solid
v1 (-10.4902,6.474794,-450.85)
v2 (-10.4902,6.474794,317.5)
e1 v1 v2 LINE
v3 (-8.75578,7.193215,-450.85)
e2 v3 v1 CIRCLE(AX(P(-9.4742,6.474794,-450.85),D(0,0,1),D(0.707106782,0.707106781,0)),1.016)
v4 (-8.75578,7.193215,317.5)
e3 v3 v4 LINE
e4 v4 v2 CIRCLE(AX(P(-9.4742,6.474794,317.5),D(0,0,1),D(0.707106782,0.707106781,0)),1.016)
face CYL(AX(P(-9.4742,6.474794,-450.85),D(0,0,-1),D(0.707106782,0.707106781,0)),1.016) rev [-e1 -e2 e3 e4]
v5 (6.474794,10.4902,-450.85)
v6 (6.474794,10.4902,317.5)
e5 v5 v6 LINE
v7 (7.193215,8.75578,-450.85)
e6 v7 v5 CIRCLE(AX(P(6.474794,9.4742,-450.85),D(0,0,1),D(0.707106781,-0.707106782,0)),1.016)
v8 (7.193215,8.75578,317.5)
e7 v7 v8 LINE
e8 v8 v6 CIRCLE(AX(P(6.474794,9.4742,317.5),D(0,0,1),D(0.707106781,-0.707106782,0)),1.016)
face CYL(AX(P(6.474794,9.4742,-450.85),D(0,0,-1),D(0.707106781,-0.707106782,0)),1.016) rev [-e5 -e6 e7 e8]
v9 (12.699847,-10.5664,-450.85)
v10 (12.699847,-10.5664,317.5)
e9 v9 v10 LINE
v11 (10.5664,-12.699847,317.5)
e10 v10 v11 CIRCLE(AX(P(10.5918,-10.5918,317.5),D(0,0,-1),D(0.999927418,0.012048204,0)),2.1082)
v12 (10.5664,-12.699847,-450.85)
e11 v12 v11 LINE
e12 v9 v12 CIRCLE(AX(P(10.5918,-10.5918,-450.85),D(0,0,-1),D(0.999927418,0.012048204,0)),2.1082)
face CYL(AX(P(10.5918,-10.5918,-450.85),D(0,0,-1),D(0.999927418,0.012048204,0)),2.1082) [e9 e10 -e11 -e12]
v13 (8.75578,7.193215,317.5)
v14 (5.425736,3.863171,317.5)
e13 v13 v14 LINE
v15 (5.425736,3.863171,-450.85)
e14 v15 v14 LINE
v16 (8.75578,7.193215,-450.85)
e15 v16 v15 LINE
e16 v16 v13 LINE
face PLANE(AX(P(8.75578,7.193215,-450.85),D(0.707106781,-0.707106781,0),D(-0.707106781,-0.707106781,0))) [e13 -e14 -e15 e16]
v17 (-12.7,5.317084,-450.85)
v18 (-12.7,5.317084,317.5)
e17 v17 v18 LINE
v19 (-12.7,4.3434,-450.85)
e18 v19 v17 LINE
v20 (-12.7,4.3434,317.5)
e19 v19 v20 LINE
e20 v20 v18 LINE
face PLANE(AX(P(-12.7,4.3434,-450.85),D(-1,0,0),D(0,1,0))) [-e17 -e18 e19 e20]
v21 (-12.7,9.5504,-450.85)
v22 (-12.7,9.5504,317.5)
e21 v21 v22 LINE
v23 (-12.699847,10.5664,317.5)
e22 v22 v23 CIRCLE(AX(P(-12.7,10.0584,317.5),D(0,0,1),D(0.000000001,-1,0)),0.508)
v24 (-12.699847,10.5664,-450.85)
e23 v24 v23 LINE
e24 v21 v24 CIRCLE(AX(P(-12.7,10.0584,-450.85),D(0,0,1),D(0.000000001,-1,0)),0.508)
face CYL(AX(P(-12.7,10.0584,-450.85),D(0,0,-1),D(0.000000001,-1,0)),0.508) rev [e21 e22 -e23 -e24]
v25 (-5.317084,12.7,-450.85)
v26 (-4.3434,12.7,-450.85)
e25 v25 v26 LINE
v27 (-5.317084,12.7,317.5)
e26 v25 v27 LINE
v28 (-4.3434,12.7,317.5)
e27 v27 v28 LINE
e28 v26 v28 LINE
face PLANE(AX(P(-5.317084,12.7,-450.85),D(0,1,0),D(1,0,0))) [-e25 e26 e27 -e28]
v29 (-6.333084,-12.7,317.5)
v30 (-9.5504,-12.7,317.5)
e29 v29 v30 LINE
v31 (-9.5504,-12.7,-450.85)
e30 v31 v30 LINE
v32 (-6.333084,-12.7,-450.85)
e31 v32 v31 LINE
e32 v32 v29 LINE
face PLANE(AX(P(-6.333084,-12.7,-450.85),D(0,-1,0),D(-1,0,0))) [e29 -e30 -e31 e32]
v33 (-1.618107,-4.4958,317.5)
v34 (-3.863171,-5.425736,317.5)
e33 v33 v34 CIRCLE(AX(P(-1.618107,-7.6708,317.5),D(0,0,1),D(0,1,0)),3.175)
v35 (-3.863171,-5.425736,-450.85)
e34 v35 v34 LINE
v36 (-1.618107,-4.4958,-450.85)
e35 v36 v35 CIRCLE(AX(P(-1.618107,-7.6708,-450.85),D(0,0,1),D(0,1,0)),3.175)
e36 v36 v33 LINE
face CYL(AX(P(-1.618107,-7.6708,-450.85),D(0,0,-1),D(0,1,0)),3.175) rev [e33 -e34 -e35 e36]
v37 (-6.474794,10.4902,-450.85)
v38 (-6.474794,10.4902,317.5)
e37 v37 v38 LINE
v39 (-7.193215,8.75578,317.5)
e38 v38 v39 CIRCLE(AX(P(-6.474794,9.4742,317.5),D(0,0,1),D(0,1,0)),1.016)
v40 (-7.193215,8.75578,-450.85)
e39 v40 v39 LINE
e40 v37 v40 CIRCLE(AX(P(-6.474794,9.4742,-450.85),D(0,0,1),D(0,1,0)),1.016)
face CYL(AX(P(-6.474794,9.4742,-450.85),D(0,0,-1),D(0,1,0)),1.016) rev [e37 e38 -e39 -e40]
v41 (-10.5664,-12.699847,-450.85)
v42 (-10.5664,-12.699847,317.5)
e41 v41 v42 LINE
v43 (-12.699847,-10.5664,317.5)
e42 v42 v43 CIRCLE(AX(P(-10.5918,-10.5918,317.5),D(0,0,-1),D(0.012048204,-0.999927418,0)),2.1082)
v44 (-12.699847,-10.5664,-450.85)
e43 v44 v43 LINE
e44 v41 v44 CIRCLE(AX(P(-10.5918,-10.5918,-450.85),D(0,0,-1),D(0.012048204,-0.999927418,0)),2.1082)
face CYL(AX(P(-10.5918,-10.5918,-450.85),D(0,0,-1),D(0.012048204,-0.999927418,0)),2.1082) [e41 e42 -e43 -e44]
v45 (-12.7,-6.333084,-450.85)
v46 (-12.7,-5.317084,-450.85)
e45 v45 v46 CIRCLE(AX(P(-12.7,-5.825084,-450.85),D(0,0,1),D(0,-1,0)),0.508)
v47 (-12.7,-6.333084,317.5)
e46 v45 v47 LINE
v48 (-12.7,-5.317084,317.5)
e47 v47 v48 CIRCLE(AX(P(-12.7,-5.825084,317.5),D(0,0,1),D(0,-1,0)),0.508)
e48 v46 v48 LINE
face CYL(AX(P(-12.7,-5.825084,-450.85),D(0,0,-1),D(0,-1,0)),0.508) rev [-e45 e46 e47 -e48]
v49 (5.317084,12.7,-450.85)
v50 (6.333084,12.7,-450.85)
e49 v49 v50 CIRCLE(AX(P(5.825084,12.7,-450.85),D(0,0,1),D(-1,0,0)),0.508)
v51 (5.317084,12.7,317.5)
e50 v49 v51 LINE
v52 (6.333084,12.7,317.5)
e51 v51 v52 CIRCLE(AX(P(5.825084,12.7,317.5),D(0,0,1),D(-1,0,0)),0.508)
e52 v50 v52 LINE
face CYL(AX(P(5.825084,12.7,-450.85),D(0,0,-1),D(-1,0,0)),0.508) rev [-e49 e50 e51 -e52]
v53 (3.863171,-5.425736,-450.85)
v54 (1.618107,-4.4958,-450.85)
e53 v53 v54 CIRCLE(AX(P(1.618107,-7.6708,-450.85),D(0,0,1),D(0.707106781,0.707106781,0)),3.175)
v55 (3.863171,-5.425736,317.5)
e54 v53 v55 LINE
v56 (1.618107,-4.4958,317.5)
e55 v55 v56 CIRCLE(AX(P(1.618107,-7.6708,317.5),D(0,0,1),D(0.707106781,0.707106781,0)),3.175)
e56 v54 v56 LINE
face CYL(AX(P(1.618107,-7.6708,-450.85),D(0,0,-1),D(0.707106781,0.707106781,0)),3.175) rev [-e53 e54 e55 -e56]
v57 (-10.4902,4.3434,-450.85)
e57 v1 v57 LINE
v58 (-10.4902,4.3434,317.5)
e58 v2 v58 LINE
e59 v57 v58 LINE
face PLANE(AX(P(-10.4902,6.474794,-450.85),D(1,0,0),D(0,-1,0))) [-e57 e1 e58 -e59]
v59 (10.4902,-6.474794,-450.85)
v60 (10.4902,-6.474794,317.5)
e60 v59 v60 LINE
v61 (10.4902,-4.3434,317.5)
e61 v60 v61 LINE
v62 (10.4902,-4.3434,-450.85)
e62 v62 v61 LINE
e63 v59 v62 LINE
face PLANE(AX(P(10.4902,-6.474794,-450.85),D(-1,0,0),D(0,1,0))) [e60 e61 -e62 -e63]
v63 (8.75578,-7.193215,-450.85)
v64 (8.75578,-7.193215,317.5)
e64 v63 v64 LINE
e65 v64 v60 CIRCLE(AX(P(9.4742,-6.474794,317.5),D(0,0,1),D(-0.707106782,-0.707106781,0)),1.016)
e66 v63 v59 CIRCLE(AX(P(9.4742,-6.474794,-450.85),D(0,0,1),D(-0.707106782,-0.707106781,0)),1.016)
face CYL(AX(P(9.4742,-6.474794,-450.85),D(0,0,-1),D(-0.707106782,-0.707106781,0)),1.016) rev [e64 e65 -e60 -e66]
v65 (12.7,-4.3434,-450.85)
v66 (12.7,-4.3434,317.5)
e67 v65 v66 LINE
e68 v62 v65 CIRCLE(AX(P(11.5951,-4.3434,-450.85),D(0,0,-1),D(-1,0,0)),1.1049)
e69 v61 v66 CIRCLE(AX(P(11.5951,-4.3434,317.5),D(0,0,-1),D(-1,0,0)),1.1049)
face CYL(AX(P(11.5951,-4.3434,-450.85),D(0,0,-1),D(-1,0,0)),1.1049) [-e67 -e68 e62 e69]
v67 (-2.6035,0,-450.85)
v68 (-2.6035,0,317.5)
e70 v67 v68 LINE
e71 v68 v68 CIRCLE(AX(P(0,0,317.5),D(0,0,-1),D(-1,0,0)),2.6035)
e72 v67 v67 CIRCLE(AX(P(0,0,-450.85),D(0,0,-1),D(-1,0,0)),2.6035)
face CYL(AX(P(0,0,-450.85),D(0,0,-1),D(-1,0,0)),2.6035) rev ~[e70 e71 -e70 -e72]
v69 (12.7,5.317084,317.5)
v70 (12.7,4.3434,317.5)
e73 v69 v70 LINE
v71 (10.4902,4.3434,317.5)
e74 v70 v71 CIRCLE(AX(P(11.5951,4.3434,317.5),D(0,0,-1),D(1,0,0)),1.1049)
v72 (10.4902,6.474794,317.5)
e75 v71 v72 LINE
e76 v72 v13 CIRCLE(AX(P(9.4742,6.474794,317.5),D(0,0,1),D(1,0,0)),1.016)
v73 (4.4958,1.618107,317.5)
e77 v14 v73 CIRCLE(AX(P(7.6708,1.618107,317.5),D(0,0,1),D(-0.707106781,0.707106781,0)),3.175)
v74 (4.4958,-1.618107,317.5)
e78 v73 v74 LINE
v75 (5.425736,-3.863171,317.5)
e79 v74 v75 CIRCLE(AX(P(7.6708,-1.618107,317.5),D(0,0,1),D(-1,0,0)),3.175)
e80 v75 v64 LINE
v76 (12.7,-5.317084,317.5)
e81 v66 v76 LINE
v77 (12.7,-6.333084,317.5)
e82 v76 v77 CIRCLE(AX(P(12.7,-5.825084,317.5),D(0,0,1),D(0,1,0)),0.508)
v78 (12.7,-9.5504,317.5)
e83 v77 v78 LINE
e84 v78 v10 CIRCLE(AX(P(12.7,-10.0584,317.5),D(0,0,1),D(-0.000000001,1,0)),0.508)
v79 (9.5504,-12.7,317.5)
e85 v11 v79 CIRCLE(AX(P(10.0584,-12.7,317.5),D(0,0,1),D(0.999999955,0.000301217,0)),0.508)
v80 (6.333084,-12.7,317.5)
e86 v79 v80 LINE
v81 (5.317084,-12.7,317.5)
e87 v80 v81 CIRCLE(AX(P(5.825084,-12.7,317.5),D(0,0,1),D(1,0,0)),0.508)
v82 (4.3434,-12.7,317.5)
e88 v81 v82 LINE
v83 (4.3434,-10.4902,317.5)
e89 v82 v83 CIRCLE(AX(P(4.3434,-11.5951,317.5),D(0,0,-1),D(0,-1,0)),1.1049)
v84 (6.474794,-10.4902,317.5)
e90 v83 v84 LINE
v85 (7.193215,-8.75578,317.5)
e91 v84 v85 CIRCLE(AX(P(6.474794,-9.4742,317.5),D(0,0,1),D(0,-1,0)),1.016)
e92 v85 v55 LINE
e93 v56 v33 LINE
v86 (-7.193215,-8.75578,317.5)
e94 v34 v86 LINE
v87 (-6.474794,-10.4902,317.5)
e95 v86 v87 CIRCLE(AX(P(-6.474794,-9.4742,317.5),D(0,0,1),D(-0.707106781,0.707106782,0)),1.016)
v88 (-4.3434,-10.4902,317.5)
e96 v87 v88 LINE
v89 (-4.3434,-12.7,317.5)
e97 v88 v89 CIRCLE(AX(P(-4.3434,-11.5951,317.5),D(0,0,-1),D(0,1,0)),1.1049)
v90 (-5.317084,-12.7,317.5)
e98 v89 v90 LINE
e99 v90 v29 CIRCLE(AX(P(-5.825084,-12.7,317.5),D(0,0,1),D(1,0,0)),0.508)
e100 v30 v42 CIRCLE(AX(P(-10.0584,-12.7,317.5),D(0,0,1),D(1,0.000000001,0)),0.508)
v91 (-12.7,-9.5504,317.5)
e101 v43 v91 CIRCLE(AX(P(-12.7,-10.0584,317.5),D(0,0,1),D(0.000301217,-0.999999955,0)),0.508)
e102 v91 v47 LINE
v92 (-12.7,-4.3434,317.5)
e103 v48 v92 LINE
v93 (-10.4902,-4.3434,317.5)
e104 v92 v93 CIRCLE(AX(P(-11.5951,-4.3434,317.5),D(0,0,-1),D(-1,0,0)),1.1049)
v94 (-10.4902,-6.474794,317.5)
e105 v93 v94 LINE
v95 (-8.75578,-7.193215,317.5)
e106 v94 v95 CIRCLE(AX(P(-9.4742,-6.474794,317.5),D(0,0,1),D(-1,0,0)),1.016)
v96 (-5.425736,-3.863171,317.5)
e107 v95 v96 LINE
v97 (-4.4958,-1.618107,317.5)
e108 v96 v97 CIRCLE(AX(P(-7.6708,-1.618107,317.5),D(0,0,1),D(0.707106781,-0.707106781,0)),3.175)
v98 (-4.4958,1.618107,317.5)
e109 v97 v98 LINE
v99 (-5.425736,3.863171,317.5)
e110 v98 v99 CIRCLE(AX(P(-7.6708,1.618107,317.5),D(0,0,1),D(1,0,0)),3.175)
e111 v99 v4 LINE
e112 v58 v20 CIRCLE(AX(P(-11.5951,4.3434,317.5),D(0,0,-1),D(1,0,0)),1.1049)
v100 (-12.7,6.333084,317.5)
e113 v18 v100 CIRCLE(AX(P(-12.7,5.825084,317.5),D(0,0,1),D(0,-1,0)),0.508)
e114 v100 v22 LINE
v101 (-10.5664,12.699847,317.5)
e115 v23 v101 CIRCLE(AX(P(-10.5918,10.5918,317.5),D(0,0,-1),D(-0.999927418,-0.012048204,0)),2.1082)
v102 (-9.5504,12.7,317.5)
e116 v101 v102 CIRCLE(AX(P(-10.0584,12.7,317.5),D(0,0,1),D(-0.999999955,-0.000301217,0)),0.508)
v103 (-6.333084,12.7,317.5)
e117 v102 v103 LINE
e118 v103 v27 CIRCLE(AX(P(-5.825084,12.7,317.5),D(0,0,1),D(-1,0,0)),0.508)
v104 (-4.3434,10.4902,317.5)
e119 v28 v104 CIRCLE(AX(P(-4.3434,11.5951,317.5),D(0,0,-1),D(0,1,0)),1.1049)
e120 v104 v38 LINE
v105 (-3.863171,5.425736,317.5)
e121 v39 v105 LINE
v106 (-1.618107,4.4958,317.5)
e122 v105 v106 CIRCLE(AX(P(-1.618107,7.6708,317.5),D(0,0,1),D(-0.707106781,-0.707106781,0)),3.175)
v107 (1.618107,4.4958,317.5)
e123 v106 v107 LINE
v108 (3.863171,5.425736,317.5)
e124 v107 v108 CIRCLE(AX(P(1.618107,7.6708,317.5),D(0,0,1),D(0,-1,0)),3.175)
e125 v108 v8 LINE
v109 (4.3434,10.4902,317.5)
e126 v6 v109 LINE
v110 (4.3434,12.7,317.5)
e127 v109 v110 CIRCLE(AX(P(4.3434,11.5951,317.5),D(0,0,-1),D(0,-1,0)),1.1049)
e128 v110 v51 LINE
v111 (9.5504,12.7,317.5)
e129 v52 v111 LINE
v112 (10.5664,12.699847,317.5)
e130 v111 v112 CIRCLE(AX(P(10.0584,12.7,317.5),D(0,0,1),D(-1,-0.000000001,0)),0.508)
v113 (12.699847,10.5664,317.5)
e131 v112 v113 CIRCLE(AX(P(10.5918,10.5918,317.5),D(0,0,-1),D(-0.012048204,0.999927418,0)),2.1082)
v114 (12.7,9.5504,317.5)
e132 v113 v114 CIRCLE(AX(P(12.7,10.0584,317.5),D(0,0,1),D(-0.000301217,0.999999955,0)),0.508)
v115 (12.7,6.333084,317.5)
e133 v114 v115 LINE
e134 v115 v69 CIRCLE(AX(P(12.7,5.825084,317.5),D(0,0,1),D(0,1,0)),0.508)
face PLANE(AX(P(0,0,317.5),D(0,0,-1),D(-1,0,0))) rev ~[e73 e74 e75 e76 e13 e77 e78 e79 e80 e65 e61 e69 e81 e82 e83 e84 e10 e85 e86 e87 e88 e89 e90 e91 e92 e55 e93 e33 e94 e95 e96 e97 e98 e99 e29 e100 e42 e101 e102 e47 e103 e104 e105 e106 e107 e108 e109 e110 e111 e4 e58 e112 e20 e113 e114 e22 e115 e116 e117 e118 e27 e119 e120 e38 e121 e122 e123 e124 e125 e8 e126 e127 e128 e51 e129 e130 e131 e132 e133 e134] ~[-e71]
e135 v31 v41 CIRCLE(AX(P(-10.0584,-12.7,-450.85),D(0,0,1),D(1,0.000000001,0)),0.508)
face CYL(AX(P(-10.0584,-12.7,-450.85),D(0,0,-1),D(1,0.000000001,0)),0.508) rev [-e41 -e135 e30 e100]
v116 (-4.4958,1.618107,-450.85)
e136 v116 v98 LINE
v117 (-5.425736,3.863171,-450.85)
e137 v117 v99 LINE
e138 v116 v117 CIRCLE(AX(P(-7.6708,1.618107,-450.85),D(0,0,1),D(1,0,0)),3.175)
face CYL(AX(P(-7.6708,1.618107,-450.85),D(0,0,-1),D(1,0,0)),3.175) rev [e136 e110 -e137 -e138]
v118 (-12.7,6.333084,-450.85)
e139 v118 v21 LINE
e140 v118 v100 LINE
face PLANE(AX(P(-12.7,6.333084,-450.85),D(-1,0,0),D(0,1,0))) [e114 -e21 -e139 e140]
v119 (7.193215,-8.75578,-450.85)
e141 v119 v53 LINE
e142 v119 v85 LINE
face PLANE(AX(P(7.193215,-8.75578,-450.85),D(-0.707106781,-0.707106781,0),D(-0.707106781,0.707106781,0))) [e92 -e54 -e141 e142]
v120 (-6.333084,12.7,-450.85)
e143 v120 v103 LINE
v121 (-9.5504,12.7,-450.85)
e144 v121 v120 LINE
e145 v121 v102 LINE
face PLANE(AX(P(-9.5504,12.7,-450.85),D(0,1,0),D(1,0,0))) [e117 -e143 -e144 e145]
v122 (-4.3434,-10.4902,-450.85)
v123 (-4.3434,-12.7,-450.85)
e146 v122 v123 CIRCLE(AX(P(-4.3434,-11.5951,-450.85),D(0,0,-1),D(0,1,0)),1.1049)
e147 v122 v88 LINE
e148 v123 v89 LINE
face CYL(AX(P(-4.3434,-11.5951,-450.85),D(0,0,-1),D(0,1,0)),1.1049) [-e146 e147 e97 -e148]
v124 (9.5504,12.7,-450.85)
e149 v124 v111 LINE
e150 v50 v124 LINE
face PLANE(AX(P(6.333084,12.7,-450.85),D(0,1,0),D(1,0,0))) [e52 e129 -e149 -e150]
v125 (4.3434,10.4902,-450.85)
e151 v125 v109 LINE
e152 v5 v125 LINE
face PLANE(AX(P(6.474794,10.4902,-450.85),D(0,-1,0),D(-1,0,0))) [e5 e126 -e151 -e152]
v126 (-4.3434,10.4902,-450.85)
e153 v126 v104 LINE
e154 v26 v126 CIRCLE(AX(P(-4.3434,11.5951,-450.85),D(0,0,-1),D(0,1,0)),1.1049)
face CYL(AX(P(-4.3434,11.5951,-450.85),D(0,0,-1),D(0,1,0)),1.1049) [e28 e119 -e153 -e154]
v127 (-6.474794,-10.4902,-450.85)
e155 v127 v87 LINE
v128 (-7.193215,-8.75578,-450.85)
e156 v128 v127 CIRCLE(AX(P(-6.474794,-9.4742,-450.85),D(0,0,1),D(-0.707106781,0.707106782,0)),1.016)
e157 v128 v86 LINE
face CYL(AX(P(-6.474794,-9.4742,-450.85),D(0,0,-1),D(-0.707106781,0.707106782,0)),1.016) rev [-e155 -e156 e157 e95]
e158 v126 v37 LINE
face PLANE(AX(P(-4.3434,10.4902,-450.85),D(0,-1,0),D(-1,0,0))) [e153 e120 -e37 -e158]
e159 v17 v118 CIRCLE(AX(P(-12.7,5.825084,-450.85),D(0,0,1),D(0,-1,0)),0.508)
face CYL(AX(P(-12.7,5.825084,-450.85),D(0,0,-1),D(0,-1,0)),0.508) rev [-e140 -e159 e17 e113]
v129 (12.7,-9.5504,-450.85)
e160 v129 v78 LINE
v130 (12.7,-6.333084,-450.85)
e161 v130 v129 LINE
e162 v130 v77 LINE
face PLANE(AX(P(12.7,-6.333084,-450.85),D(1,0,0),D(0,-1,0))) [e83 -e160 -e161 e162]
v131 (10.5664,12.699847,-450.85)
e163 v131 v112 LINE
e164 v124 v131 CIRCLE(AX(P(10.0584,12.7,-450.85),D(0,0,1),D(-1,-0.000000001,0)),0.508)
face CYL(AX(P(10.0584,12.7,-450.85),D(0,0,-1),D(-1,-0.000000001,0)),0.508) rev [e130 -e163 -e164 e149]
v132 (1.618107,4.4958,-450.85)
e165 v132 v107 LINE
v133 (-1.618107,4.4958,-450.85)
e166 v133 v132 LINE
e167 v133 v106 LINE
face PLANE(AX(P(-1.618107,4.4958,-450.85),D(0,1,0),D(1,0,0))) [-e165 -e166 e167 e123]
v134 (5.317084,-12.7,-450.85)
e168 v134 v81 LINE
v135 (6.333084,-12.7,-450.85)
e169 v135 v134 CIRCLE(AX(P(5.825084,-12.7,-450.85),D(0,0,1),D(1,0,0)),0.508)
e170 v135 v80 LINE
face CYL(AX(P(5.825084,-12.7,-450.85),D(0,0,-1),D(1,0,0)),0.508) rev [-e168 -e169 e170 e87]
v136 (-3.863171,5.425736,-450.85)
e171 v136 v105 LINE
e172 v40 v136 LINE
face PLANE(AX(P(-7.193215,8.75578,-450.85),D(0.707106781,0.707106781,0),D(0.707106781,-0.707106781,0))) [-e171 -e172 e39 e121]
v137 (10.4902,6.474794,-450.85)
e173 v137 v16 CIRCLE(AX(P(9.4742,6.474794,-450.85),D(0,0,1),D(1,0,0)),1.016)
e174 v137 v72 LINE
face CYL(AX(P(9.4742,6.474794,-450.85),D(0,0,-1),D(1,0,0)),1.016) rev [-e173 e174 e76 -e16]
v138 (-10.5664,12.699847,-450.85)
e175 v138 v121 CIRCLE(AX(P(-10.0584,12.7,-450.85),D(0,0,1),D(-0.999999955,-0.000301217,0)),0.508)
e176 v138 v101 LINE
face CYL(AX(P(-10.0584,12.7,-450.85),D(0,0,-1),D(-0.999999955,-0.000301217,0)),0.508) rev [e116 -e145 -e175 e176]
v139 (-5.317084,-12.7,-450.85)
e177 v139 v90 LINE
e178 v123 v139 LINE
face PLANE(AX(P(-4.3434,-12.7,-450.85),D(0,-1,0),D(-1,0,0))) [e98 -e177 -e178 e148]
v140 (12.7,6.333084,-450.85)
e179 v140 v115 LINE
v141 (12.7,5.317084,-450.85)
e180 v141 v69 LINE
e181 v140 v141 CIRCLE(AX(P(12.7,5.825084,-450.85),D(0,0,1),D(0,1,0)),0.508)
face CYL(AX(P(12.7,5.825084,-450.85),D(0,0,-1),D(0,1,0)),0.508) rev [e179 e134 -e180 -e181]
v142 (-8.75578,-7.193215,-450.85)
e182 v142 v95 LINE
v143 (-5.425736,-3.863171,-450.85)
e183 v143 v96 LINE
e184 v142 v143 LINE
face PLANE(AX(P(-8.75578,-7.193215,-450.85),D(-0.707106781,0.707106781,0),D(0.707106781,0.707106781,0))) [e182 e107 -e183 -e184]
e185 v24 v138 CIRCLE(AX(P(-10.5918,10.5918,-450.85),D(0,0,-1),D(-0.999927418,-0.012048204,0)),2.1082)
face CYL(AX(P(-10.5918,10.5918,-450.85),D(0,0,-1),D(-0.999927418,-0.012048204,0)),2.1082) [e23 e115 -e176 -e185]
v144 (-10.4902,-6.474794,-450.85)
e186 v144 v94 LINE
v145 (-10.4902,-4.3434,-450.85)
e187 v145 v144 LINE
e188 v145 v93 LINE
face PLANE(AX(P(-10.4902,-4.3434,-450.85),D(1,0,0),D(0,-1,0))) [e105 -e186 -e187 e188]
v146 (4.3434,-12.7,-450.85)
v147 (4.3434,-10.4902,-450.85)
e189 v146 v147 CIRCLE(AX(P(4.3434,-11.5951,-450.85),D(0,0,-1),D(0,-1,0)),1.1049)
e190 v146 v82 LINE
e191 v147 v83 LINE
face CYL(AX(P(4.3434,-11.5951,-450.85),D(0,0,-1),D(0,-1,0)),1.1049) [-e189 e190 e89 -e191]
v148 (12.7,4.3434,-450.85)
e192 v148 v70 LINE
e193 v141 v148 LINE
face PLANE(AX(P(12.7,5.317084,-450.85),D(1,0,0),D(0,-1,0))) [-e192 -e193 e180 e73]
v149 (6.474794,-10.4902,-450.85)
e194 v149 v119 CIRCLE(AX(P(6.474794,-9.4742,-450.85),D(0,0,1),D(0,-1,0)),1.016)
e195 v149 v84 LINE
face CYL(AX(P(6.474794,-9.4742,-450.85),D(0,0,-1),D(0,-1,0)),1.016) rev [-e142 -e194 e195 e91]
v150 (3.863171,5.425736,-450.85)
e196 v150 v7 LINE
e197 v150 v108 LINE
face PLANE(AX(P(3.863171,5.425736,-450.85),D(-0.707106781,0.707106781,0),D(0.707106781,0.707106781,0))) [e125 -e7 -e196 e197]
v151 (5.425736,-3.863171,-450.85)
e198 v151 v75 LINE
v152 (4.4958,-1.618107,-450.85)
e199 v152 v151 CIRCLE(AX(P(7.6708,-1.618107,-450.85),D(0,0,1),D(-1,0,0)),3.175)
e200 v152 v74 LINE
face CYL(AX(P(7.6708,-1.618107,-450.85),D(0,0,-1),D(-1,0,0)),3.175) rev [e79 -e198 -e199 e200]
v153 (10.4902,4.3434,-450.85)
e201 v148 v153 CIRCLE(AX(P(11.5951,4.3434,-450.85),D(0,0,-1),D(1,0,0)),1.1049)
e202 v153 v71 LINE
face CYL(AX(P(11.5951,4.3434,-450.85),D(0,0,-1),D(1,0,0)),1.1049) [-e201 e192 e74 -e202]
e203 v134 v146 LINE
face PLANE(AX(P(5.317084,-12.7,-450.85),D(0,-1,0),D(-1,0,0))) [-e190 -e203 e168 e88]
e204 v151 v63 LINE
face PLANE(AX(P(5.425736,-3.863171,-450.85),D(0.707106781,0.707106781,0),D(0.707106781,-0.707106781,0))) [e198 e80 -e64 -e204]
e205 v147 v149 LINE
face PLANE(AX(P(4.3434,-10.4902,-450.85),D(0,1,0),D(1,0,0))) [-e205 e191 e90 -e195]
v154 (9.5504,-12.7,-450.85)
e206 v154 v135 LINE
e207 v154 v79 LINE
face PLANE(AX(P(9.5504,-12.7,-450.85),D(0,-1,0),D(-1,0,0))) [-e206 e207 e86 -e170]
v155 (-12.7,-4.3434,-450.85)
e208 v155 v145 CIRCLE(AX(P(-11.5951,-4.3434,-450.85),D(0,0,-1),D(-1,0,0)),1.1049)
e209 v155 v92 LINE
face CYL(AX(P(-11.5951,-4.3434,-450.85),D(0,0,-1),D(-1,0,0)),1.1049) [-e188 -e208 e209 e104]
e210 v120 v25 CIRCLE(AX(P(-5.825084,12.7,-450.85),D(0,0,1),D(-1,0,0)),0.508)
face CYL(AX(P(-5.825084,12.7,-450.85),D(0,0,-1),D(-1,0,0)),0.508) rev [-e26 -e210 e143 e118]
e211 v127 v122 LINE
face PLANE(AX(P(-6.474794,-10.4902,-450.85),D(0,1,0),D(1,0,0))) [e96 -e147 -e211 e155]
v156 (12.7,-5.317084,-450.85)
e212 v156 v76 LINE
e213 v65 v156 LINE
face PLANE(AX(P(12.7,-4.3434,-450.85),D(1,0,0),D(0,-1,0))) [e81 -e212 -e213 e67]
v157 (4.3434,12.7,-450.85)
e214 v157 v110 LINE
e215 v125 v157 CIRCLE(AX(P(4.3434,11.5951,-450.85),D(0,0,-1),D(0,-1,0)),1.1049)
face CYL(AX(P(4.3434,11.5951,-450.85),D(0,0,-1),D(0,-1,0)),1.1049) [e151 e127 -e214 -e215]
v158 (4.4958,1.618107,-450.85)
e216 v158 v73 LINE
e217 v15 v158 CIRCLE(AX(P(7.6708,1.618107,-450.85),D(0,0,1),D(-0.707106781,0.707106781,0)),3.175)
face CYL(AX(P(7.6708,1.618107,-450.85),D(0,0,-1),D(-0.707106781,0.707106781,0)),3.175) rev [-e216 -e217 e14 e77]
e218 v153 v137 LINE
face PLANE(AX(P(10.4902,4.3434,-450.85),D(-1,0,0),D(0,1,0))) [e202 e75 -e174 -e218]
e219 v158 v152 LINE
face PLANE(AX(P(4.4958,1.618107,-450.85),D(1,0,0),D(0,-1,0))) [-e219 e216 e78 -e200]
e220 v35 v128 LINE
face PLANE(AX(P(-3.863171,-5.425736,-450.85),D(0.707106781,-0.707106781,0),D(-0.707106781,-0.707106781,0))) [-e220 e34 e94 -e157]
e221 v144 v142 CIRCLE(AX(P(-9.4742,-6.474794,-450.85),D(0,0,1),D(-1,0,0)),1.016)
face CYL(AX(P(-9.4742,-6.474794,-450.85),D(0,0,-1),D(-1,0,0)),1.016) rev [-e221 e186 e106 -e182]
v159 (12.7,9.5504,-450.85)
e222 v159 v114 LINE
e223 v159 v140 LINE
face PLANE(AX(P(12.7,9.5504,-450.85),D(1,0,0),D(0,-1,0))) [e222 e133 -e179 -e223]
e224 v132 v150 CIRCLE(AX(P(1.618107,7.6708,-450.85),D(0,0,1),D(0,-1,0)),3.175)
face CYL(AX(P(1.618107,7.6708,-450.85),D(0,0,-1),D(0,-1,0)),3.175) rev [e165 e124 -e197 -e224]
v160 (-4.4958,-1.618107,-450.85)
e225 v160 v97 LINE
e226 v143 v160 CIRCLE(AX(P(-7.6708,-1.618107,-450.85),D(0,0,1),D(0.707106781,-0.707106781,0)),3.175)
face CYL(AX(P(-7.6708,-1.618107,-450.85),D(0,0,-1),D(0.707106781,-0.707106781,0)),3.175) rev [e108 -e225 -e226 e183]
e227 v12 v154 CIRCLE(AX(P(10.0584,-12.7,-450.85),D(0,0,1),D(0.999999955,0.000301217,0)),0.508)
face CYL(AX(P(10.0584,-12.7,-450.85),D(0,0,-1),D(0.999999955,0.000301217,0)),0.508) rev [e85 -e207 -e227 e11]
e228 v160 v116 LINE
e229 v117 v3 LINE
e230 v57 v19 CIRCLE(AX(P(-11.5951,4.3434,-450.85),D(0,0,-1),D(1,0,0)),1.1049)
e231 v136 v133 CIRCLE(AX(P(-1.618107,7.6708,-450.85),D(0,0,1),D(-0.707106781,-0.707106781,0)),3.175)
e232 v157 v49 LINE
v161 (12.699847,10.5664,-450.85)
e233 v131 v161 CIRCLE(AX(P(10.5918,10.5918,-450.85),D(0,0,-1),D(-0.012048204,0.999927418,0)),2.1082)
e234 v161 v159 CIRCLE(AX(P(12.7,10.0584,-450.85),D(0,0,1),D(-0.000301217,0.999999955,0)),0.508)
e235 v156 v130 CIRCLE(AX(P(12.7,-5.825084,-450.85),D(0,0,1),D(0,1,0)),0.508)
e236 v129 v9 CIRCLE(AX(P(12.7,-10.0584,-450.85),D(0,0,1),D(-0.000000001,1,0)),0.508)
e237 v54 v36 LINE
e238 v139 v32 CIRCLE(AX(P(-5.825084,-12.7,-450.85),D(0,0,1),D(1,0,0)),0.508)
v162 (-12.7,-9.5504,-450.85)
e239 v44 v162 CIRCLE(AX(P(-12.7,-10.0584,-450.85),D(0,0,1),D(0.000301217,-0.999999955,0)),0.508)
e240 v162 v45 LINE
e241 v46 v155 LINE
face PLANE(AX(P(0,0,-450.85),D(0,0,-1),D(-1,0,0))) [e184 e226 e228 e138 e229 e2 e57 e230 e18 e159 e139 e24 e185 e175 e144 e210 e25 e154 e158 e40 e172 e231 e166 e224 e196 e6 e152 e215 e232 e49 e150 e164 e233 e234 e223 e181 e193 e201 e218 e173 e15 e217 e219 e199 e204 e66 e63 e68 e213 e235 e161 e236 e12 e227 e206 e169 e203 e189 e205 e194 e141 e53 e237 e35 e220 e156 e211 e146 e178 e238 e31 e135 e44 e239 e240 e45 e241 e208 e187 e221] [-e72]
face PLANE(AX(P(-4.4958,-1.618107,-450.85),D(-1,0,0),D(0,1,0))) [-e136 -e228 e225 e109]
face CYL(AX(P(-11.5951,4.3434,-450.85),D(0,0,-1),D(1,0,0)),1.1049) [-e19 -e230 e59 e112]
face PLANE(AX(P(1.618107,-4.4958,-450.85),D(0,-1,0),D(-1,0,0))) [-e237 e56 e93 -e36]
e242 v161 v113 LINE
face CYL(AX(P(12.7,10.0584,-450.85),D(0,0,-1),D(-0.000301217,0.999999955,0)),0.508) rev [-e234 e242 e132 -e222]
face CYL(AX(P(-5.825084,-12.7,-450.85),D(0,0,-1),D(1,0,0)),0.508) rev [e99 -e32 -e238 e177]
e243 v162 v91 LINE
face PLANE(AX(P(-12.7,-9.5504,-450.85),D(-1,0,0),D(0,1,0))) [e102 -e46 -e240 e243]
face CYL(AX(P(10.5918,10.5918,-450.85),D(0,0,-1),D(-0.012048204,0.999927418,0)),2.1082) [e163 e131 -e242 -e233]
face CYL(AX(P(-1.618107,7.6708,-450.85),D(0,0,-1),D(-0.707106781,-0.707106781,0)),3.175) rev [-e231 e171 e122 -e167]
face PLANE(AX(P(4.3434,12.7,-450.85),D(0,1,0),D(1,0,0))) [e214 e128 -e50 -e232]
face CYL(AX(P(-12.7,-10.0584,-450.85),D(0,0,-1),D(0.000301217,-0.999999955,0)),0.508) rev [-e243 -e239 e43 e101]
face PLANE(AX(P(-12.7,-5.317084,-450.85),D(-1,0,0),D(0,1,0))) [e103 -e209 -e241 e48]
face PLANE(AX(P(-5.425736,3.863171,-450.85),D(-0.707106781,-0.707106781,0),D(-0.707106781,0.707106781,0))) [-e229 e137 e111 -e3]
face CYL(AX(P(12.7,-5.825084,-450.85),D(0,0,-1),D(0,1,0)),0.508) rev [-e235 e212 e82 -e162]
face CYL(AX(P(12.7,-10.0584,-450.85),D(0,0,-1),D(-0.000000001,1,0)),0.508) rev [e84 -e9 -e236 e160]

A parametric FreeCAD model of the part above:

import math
import FreeCAD as App
import Part
import Sketcher
from FreeCAD import Vector
Q = App.Units.Quantity

doc = App.newDocument("Part")
params = doc.addObject("Spreadsheet::Sheet", "Params")
for row, (alias, value) in enumerate([
    ("sketch1_radius", "0.02 in"),
    ("sketch1_radius2", "0.04 in"),
    ("sketch1_diameter", "0.205 in"),
    ("sketch1_radius3", "0.125 in"),
    ("sketch1_radius4", "0.083 in"),
    ("pad1_length", "30.25 in"),
], start=1):
    params.set(f"A{row}", alias)
    params.set(f"B{row}", "=" + value)
    params.setAlias(f"B{row}", alias)

body = doc.addObject("PartDesign::Body", "Body")

# Sketch on XY plane
sketch1 = body.newObject("Sketcher::SketchObject", "Sketch")
sketch1.AttachmentSupport = (doc.getObject("XY_Plane"), [""])
sketch1.MapMode = "FlatFace"
sketch1.AttachmentOffset = App.Placement(Vector(0, 0, -17.75 * 25.4), App.Rotation())
sketch1.addGeometry(Part.LineSegment(Vector(-12.7, -9.6, 0), Vector(-12.7, -6.3, 0)), False)
sketch1.addGeometry(Part.ArcOfCircle(Part.Circle(Vector(-12.7, -5.8, 0), Vector(0, 0, 1), 0.5), math.radians(-90), math.radians(90)), False)
sketch1.addGeometry(Part.LineSegment(Vector(-12.7, -5.3, 0), Vector(-12.7, -4.3, 0)), False)
sketch1.addGeometry(Part.ArcOfCircle(Part.Circle(Vector(-11.6, -4.3, 0), Vector(0, 0, 1), 1.1), math.radians(0), math.radians(180)), False)
sketch1.addGeometry(Part.LineSegment(Vector(-10.5, -4.3, 0), Vector(-10.5, -6.5, 0)), False)
sketch1.addGeometry(Part.ArcOfCircle(Part.Circle(Vector(-9.5, -6.5, 0), Vector(0, 0, 1), 1), math.radians(180), math.radians(315)), False)
sketch1.addGeometry(Part.LineSegment(Vector(-8.8, -7.2, 0), Vector(-5.4, -3.9, 0)), False)
sketch1.addGeometry(Part.ArcOfCircle(Part.Circle(Vector(-7.7, -1.6, 0), Vector(0, 0, 1), 3.2), math.radians(-45), math.radians(0)), False)
sketch1.addGeometry(Part.LineSegment(Vector(-4.5, -1.6, 0), Vector(-4.5, 1.6, 0)), False)
sketch1.addGeometry(Part.ArcOfCircle(Part.Circle(Vector(-7.7, 1.6, 0), Vector(0, 0, 1), 3.2), math.radians(0), math.radians(45)), False)
sketch1.addGeometry(Part.LineSegment(Vector(-5.4, 3.9, 0), Vector(-8.8, 7.2, 0)), False)
sketch1.addGeometry(Part.ArcOfCircle(Part.Circle(Vector(-9.5, 6.5, 0), Vector(0, 0, 1), 1), math.radians(45), math.radians(180)), False)
sketch1.addGeometry(Part.LineSegment(Vector(-10.5, 6.5, 0), Vector(-10.5, 4.3, 0)), False)
sketch1.addGeometry(Part.ArcOfCircle(Part.Circle(Vector(-11.6, 4.3, 0), Vector(0, 0, 1), 1.1), math.radians(180), math.radians(360)), False)
sketch1.addGeometry(Part.LineSegment(Vector(-12.7, 4.3, 0), Vector(-12.7, 5.3, 0)), False)
sketch1.addGeometry(Part.ArcOfCircle(Part.Circle(Vector(-12.7, 5.8, 0), Vector(0, 0, 1), 0.5), math.radians(-90), math.radians(90)), False)
sketch1.addGeometry(Part.LineSegment(Vector(-12.7, 6.3, 0), Vector(-12.7, 9.6, 0)), False)
sketch1.addGeometry(Part.ArcOfCircle(Part.Circle(Vector(-12.7, 10.1, 0), Vector(0, 0, 1), 0.5), math.radians(-90), math.radians(90)), False)
sketch1.addGeometry(Part.ArcOfCircle(Part.Circle(Vector(-10.6, 10.6, 0), Vector(0, 0, 1), 2.1), math.radians(89), math.radians(181)), False)
sketch1.addGeometry(Part.ArcOfCircle(Part.Circle(Vector(-10.1, 12.7, 0), Vector(0, 0, 1), 0.5), math.radians(-180), math.radians(0)), False)
sketch1.addGeometry(Part.LineSegment(Vector(-9.6, 12.7, 0), Vector(-6.3, 12.7, 0)), False)
sketch1.addGeometry(Part.ArcOfCircle(Part.Circle(Vector(-5.8, 12.7, 0), Vector(0, 0, 1), 0.5), math.radians(180), math.radians(360)), False)
sketch1.addGeometry(Part.LineSegment(Vector(-5.3, 12.7, 0), Vector(-4.3, 12.7, 0)), False)
sketch1.addGeometry(Part.ArcOfCircle(Part.Circle(Vector(-4.3, 11.6, 0), Vector(0, 0, 1), 1.1), math.radians(-90), math.radians(90)), False)
sketch1.addGeometry(Part.LineSegment(Vector(-4.3, 10.5, 0), Vector(-6.5, 10.5, 0)), False)
sketch1.addGeometry(Part.ArcOfCircle(Part.Circle(Vector(-6.5, 9.5, 0), Vector(0, 0, 1), 1), math.radians(90), math.radians(225)), False)
sketch1.addGeometry(Part.LineSegment(Vector(-7.2, 8.8, 0), Vector(-3.9, 5.4, 0)), False)
sketch1.addGeometry(Part.ArcOfCircle(Part.Circle(Vector(-1.6, 7.7, 0), Vector(0, 0, 1), 3.2), math.radians(-135), math.radians(-90)), False)
sketch1.addGeometry(Part.LineSegment(Vector(-1.6, 4.5, 0), Vector(1.6, 4.5, 0)), False)
sketch1.addGeometry(Part.ArcOfCircle(Part.Circle(Vector(1.6, 7.7, 0), Vector(0, 0, 1), 3.2), math.radians(-90), math.radians(-45)), False)
sketch1.addGeometry(Part.LineSegment(Vector(3.9, 5.4, 0), Vector(7.2, 8.8, 0)), False)
sketch1.addGeometry(Part.ArcOfCircle(Part.Circle(Vector(6.5, 9.5, 0), Vector(0, 0, 1), 1), math.radians(-45), math.radians(90)), False)
sketch1.addGeometry(Part.LineSegment(Vector(6.5, 10.5, 0), Vector(4.3, 10.5, 0)), False)
sketch1.addGeometry(Part.ArcOfCircle(Part.Circle(Vector(4.3, 11.6, 0), Vector(0, 0, 1), 1.1), math.radians(90), math.radians(270)), False)
sketch1.addGeometry(Part.LineSegment(Vector(4.3, 12.7, 0), Vector(5.3, 12.7, 0)), False)
sketch1.addGeometry(Part.ArcOfCircle(Part.Circle(Vector(5.8, 12.7, 0), Vector(0, 0, 1), 0.5), math.radians(180), math.radians(360)), False)
sketch1.addGeometry(Part.LineSegment(Vector(6.3, 12.7, 0), Vector(9.6, 12.7, 0)), False)
sketch1.addGeometry(Part.ArcOfCircle(Part.Circle(Vector(10.1, 12.7, 0), Vector(0, 0, 1), 0.5), math.radians(180), math.radians(360)), False)
sketch1.addGeometry(Part.ArcOfCircle(Part.Circle(Vector(10.6, 10.6, 0), Vector(0, 0, 1), 2.1), math.radians(-1), math.radians(91)), False)
sketch1.addGeometry(Part.ArcOfCircle(Part.Circle(Vector(12.7, 10.1, 0), Vector(0, 0, 1), 0.5), math.radians(90), math.radians(270)), False)
sketch1.addGeometry(Part.LineSegment(Vector(12.7, 9.6, 0), Vector(12.7, 6.3, 0)), False)
sketch1.addGeometry(Part.ArcOfCircle(Part.Circle(Vector(12.7, 5.8, 0), Vector(0, 0, 1), 0.5), math.radians(90), math.radians(270)), False)
sketch1.addGeometry(Part.LineSegment(Vector(12.7, 5.3, 0), Vector(12.7, 4.3, 0)), False)
sketch1.addGeometry(Part.ArcOfCircle(Part.Circle(Vector(11.6, 4.3, 0), Vector(0, 0, 1), 1.1), math.radians(180), math.radians(360)), False)
sketch1.addGeometry(Part.LineSegment(Vector(10.5, 4.3, 0), Vector(10.5, 6.5, 0)), False)
sketch1.addGeometry(Part.ArcOfCircle(Part.Circle(Vector(9.5, 6.5, 0), Vector(0, 0, 1), 1), math.radians(0), math.radians(135)), False)
sketch1.addGeometry(Part.LineSegment(Vector(8.8, 7.2, 0), Vector(5.4, 3.9, 0)), False)
sketch1.addGeometry(Part.ArcOfCircle(Part.Circle(Vector(7.7, 1.6, 0), Vector(0, 0, 1), 3.2), math.radians(135), math.radians(180)), False)
sketch1.addGeometry(Part.LineSegment(Vector(4.5, 1.6, 0), Vector(4.5, -1.6, 0)), False)
sketch1.addGeometry(Part.ArcOfCircle(Part.Circle(Vector(7.7, -1.6, 0), Vector(0, 0, 1), 3.2), math.radians(180), math.radians(225)), False)
sketch1.addGeometry(Part.LineSegment(Vector(5.4, -3.9, 0), Vector(8.8, -7.2, 0)), False)
sketch1.addGeometry(Part.ArcOfCircle(Part.Circle(Vector(9.5, -6.5, 0), Vector(0, 0, 1), 1), math.radians(-135), math.radians(0)), False)
sketch1.addGeometry(Part.LineSegment(Vector(10.5, -6.5, 0), Vector(10.5, -4.3, 0)), False)
sketch1.addGeometry(Part.ArcOfCircle(Part.Circle(Vector(11.6, -4.3, 0), Vector(0, 0, 1), 1.1), math.radians(0), math.radians(180)), False)
sketch1.addGeometry(Part.LineSegment(Vector(12.7, -4.3, 0), Vector(12.7, -5.3, 0)), False)
sketch1.addGeometry(Part.ArcOfCircle(Part.Circle(Vector(12.7, -5.8, 0), Vector(0, 0, 1), 0.5), math.radians(90), math.radians(270)), False)
sketch1.addGeometry(Part.LineSegment(Vector(12.7, -6.3, 0), Vector(12.7, -9.6, 0)), False)
sketch1.addGeometry(Part.ArcOfCircle(Part.Circle(Vector(12.7, -10.1, 0), Vector(0, 0, 1), 0.5), math.radians(90), math.radians(270)), False)
sketch1.addGeometry(Part.ArcOfCircle(Part.Circle(Vector(10.6, -10.6, 0), Vector(0, 0, 1), 2.1), math.radians(-91), math.radians(1)), False)
sketch1.addGeometry(Part.ArcOfCircle(Part.Circle(Vector(10.1, -12.7, 0), Vector(0, 0, 1), 0.5), math.radians(0), math.radians(180)), False)
sketch1.addGeometry(Part.LineSegment(Vector(9.6, -12.7, 0), Vector(6.3, -12.7, 0)), False)
sketch1.addGeometry(Part.ArcOfCircle(Part.Circle(Vector(5.8, -12.7, 0), Vector(0, 0, 1), 0.5), math.radians(0), math.radians(180)), False)
sketch1.addGeometry(Part.LineSegment(Vector(5.3, -12.7, 0), Vector(4.3, -12.7, 0)), False)
sketch1.addGeometry(Part.ArcOfCircle(Part.Circle(Vector(4.3, -11.6, 0), Vector(0, 0, 1), 1.1), math.radians(90), math.radians(270)), False)
sketch1.addGeometry(Part.LineSegment(Vector(4.3, -10.5, 0), Vector(6.5, -10.5, 0)), False)
sketch1.addGeometry(Part.ArcOfCircle(Part.Circle(Vector(6.5, -9.5, 0), Vector(0, 0, 1), 1), math.radians(-90), math.radians(45)), False)
sketch1.addGeometry(Part.LineSegment(Vector(7.2, -8.8, 0), Vector(3.9, -5.4, 0)), False)
sketch1.addGeometry(Part.ArcOfCircle(Part.Circle(Vector(1.6, -7.7, 0), Vector(0, 0, 1), 3.2), math.radians(45), math.radians(90)), False)
sketch1.addGeometry(Part.LineSegment(Vector(1.6, -4.5, 0), Vector(-1.6, -4.5, 0)), False)
sketch1.addGeometry(Part.ArcOfCircle(Part.Circle(Vector(-1.6, -7.7, 0), Vector(0, 0, 1), 3.2), math.radians(90), math.radians(135)), False)
sketch1.addGeometry(Part.LineSegment(Vector(-3.9, -5.4, 0), Vector(-7.2, -8.8, 0)), False)
sketch1.addGeometry(Part.ArcOfCircle(Part.Circle(Vector(-6.5, -9.5, 0), Vector(0, 0, 1), 1), math.radians(135), math.radians(270)), False)
sketch1.addGeometry(Part.LineSegment(Vector(-6.5, -10.5, 0), Vector(-4.3, -10.5, 0)), False)
sketch1.addGeometry(Part.ArcOfCircle(Part.Circle(Vector(-4.3, -11.6, 0), Vector(0, 0, 1), 1.1), math.radians(-90), math.radians(90)), False)
sketch1.addGeometry(Part.LineSegment(Vector(-4.3, -12.7, 0), Vector(-5.3, -12.7, 0)), False)
sketch1.addGeometry(Part.ArcOfCircle(Part.Circle(Vector(-5.8, -12.7, 0), Vector(0, 0, 1), 0.5), math.radians(0), math.radians(180)), False)
sketch1.addGeometry(Part.LineSegment(Vector(-6.3, -12.7, 0), Vector(-9.6, -12.7, 0)), False)
sketch1.addGeometry(Part.ArcOfCircle(Part.Circle(Vector(-10.1, -12.7, 0), Vector(0, 0, 1), 0.5), math.radians(0), math.radians(180)), False)
sketch1.addGeometry(Part.ArcOfCircle(Part.Circle(Vector(-10.6, -10.6, 0), Vector(0, 0, 1), 2.1), math.radians(179), math.radians(271)), False)
sketch1.addGeometry(Part.ArcOfCircle(Part.Circle(Vector(-12.7, -10.1, 0), Vector(0, 0, 1), 0.5), math.radians(-90), math.radians(90)), False)
sketch1.addGeometry(Part.Circle(Vector(0, 0, 0), Vector(0, 0, 1), 2.6), False)
sketch1.addConstraint(Sketcher.Constraint("Coincident", 0, 2, 1, 1))
sketch1.addConstraint(Sketcher.Constraint("Coincident", 1, 2, 2, 1))
sketch1.addConstraint(Sketcher.Constraint("Tangent", 2, 2, 3, 2))
sketch1.addConstraint(Sketcher.Constraint("Tangent", 3, 1, 4, 1))
sketch1.addConstraint(Sketcher.Constraint("Tangent", 4, 2, 5, 1))
sketch1.addConstraint(Sketcher.Constraint("Tangent", 5, 2, 6, 1))
sketch1.addConstraint(Sketcher.Constraint("Tangent", 6, 2, 7, 1))
sketch1.addConstraint(Sketcher.Constraint("Tangent", 7, 2, 8, 1))
sketch1.addConstraint(Sketcher.Constraint("Tangent", 8, 2, 9, 1))
sketch1.addConstraint(Sketcher.Constraint("Tangent", 9, 2, 10, 1))
sketch1.addConstraint(Sketcher.Constraint("Tangent", 10, 2, 11, 1))
sketch1.addConstraint(Sketcher.Constraint("Tangent", 11, 2, 12, 1))
sketch1.addConstraint(Sketcher.Constraint("Tangent", 12, 2, 13, 2))
sketch1.addConstraint(Sketcher.Constraint("Tangent", 13, 1, 14, 1))
sketch1.addConstraint(Sketcher.Constraint("Coincident", 14, 2, 15, 1))
sketch1.addConstraint(Sketcher.Constraint("Coincident", 15, 2, 16, 1))
sketch1.addConstraint(Sketcher.Constraint("Coincident", 16, 2, 17, 1))
sketch1.addConstraint(Sketcher.Constraint("Coincident", 17, 2, 18, 2))
sketch1.addConstraint(Sketcher.Constraint("Coincident", 18, 1, 19, 1))
sketch1.addConstraint(Sketcher.Constraint("Coincident", 19, 2, 20, 1))
sketch1.addConstraint(Sketcher.Constraint("Coincident", 20, 2, 21, 1))
sketch1.addConstraint(Sketcher.Constraint("Coincident", 21, 2, 22, 1))
sketch1.addConstraint(Sketcher.Constraint("Tangent", 22, 2, 23, 2))
sketch1.addConstraint(Sketcher.Constraint("Tangent", 23, 1, 24, 1))
sketch1.addConstraint(Sketcher.Constraint("Tangent", 24, 2, 25, 1))
sketch1.addConstraint(Sketcher.Constraint("Tangent", 25, 2, 26, 1))
sketch1.addConstraint(Sketcher.Constraint("Tangent", 26, 2, 27, 1))
sketch1.addConstraint(Sketcher.Constraint("Tangent", 27, 2, 28, 1))
sketch1.addConstraint(Sketcher.Constraint("Tangent", 28, 2, 29, 1))
sketch1.addConstraint(Sketcher.Constraint("Tangent", 29, 2, 30, 1))
sketch1.addConstraint(Sketcher.Constraint("Tangent", 30, 2, 31, 1))
sketch1.addConstraint(Sketcher.Constraint("Tangent", 31, 2, 32, 1))
sketch1.addConstraint(Sketcher.Constraint("Tangent", 32, 2, 33, 2))
sketch1.addConstraint(Sketcher.Constraint("Tangent", 33, 1, 34, 1))
sketch1.addConstraint(Sketcher.Constraint("Coincident", 34, 2, 35, 1))
sketch1.addConstraint(Sketcher.Constraint("Coincident", 35, 2, 36, 1))
sketch1.addConstraint(Sketcher.Constraint("Coincident", 36, 2, 37, 1))
sketch1.addConstraint(Sketcher.Constraint("Coincident", 37, 2, 38, 2))
sketch1.addConstraint(Sketcher.Constraint("Coincident", 38, 1, 39, 1))
sketch1.addConstraint(Sketcher.Constraint("Coincident", 39, 2, 40, 1))
sketch1.addConstraint(Sketcher.Constraint("Coincident", 40, 2, 41, 1))
sketch1.addConstraint(Sketcher.Constraint("Coincident", 41, 2, 42, 1))
sketch1.addConstraint(Sketcher.Constraint("Tangent", 42, 2, 43, 2))
sketch1.addConstraint(Sketcher.Constraint("Tangent", 43, 1, 44, 1))
sketch1.addConstraint(Sketcher.Constraint("Tangent", 44, 2, 45, 1))
sketch1.addConstraint(Sketcher.Constraint("Tangent", 45, 2, 46, 1))
sketch1.addConstraint(Sketcher.Constraint("Tangent", 46, 2, 47, 1))
sketch1.addConstraint(Sketcher.Constraint("Tangent", 47, 2, 48, 1))
sketch1.addConstraint(Sketcher.Constraint("Tangent", 48, 2, 49, 1))
sketch1.addConstraint(Sketcher.Constraint("Tangent", 49, 2, 50, 1))
sketch1.addConstraint(Sketcher.Constraint("Tangent", 50, 2, 51, 1))
sketch1.addConstraint(Sketcher.Constraint("Tangent", 51, 2, 52, 1))
sketch1.addConstraint(Sketcher.Constraint("Tangent", 52, 2, 53, 2))
sketch1.addConstraint(Sketcher.Constraint("Tangent", 53, 1, 54, 1))
sketch1.addConstraint(Sketcher.Constraint("Coincident", 54, 2, 55, 1))
sketch1.addConstraint(Sketcher.Constraint("Coincident", 55, 2, 56, 1))
sketch1.addConstraint(Sketcher.Constraint("Coincident", 56, 2, 57, 1))
sketch1.addConstraint(Sketcher.Constraint("Coincident", 57, 2, 58, 2))
sketch1.addConstraint(Sketcher.Constraint("Coincident", 58, 1, 59, 1))
sketch1.addConstraint(Sketcher.Constraint("Coincident", 59, 2, 60, 1))
sketch1.addConstraint(Sketcher.Constraint("Coincident", 60, 2, 61, 1))
sketch1.addConstraint(Sketcher.Constraint("Coincident", 61, 2, 62, 1))
sketch1.addConstraint(Sketcher.Constraint("Tangent", 62, 2, 63, 2))
sketch1.addConstraint(Sketcher.Constraint("Tangent", 63, 1, 64, 1))
sketch1.addConstraint(Sketcher.Constraint("Tangent", 64, 2, 65, 1))
sketch1.addConstraint(Sketcher.Constraint("Tangent", 65, 2, 66, 1))
sketch1.addConstraint(Sketcher.Constraint("Tangent", 66, 2, 67, 1))
sketch1.addConstraint(Sketcher.Constraint("Tangent", 67, 2, 68, 1))
sketch1.addConstraint(Sketcher.Constraint("Tangent", 68, 2, 69, 1))
sketch1.addConstraint(Sketcher.Constraint("Tangent", 69, 2, 70, 1))
sketch1.addConstraint(Sketcher.Constraint("Tangent", 70, 2, 71, 1))
sketch1.addConstraint(Sketcher.Constraint("Tangent", 71, 2, 72, 1))
sketch1.addConstraint(Sketcher.Constraint("Tangent", 72, 2, 73, 2))
sketch1.addConstraint(Sketcher.Constraint("Tangent", 73, 1, 74, 1))
sketch1.addConstraint(Sketcher.Constraint("Coincident", 74, 2, 75, 1))
sketch1.addConstraint(Sketcher.Constraint("Coincident", 75, 2, 76, 1))
sketch1.addConstraint(Sketcher.Constraint("Coincident", 76, 2, 77, 1))
sketch1.addConstraint(Sketcher.Constraint("Coincident", 77, 2, 78, 2))
sketch1.addConstraint(Sketcher.Constraint("Coincident", 78, 1, 79, 1))
sketch1.addConstraint(Sketcher.Constraint("Coincident", 79, 2, 0, 1))
sketch1.addConstraint(Sketcher.Constraint("Vertical", 0))
sketch1.addConstraint(Sketcher.Constraint("Vertical", 2))
sketch1.addConstraint(Sketcher.Constraint("Vertical", 4))
sketch1.addConstraint(Sketcher.Constraint("Vertical", 8))
sketch1.addConstraint(Sketcher.Constraint("Vertical", 12))
sketch1.addConstraint(Sketcher.Constraint("Vertical", 14))
sketch1.addConstraint(Sketcher.Constraint("Vertical", 16))
sketch1.addConstraint(Sketcher.Constraint("Horizontal", 20))
sketch1.addConstraint(Sketcher.Constraint("Horizontal", 22))
sketch1.addConstraint(Sketcher.Constraint("Horizontal", 24))
sketch1.addConstraint(Sketcher.Constraint("Horizontal", 28))
sketch1.addConstraint(Sketcher.Constraint("Horizontal", 32))
sketch1.addConstraint(Sketcher.Constraint("Horizontal", 34))
sketch1.addConstraint(Sketcher.Constraint("Horizontal", 36))
sketch1.addConstraint(Sketcher.Constraint("Vertical", 40))
sketch1.addConstraint(Sketcher.Constraint("Vertical", 42))
sketch1.addConstraint(Sketcher.Constraint("Vertical", 44))
sketch1.addConstraint(Sketcher.Constraint("Vertical", 48))
sketch1.addConstraint(Sketcher.Constraint("Vertical", 52))
sketch1.addConstraint(Sketcher.Constraint("Vertical", 54))
sketch1.addConstraint(Sketcher.Constraint("Vertical", 56))
sketch1.addConstraint(Sketcher.Constraint("Horizontal", 60))
sketch1.addConstraint(Sketcher.Constraint("Horizontal", 62))
sketch1.addConstraint(Sketcher.Constraint("Horizontal", 64))
sketch1.addConstraint(Sketcher.Constraint("Horizontal", 68))
sketch1.addConstraint(Sketcher.Constraint("Horizontal", 72))
sketch1.addConstraint(Sketcher.Constraint("Horizontal", 74))
sketch1.addConstraint(Sketcher.Constraint("Horizontal", 76))
sketch1.addConstraint(Sketcher.Constraint("Coincident", 80, 3, -1, 1))
sketch1.addConstraint(Sketcher.Constraint("Equal", 7, 9))
sketch1.addConstraint(Sketcher.Constraint("Equal", 5, 11))
sketch1.addConstraint(Sketcher.Constraint("Equal", 3, 13))
sketch1.addConstraint(Sketcher.Constraint("Equal", 1, 15))
sketch1.addConstraint(Sketcher.Constraint("Equal", 15, 17))
sketch1.addConstraint(Sketcher.Constraint("Equal", 17, 19))
sketch1.addConstraint(Sketcher.Constraint("Equal", 19, 21))
sketch1.addConstraint(Sketcher.Constraint("Equal", 13, 23))
sketch1.addConstraint(Sketcher.Constraint("Equal", 11, 25))
sketch1.addConstraint(Sketcher.Constraint("Equal", 9, 27))
sketch1.addConstraint(Sketcher.Constraint("Equal", 27, 29))
sketch1.addConstraint(Sketcher.Constraint("Equal", 25, 31))
sketch1.addConstraint(Sketcher.Constraint("Equal", 23, 33))
sketch1.addConstraint(Sketcher.Constraint("Equal", 21, 35))
sketch1.addConstraint(Sketcher.Constraint("Equal", 35, 37))
sketch1.addConstraint(Sketcher.Constraint("Equal", 18, 38))
sketch1.addConstraint(Sketcher.Constraint("Equal", 37, 39))
sketch1.addConstraint(Sketcher.Constraint("Equal", 39, 41))
sketch1.addConstraint(Sketcher.Constraint("Equal", 33, 43))
sketch1.addConstraint(Sketcher.Constraint("Equal", 31, 45))
sketch1.addConstraint(Sketcher.Constraint("Equal", 29, 47))
sketch1.addConstraint(Sketcher.Constraint("Equal", 47, 49))
sketch1.addConstraint(Sketcher.Constraint("Equal", 45, 51))
sketch1.addConstraint(Sketcher.Constraint("Equal", 43, 53))
sketch1.addConstraint(Sketcher.Constraint("Equal", 41, 55))
sketch1.addConstraint(Sketcher.Constraint("Equal", 55, 57))
sketch1.addConstraint(Sketcher.Constraint("Equal", 38, 58))
sketch1.addConstraint(Sketcher.Constraint("Equal", 57, 59))
sketch1.addConstraint(Sketcher.Constraint("Equal", 59, 61))
sketch1.addConstraint(Sketcher.Constraint("Equal", 53, 63))
sketch1.addConstraint(Sketcher.Constraint("Equal", 51, 65))
sketch1.addConstraint(Sketcher.Constraint("Equal", 49, 67))
sketch1.addConstraint(Sketcher.Constraint("Equal", 67, 69))
sketch1.addConstraint(Sketcher.Constraint("Equal", 65, 71))
sketch1.addConstraint(Sketcher.Constraint("Equal", 63, 73))
sketch1.addConstraint(Sketcher.Constraint("Equal", 61, 75))
sketch1.addConstraint(Sketcher.Constraint("Equal", 75, 77))
sketch1.addConstraint(Sketcher.Constraint("Equal", 58, 78))
sketch1.addConstraint(Sketcher.Constraint("Equal", 77, 79))
sketch1.addConstraint(Sketcher.Constraint("Symmetric", 1, 3, 41, 3, -1, 1))
sketch1.addConstraint(Sketcher.Constraint("Symmetric", 3, 3, 43, 3, -1, 1))
sketch1.addConstraint(Sketcher.Constraint("Symmetric", 7, 3, 47, 3, -1, 1))
sketch1.addConstraint(Sketcher.Constraint("Symmetric", 11, 3, 51, 3, -1, 1))
sketch1.addConstraint(Sketcher.Constraint("Symmetric", 15, 3, 55, 3, -1, 1))
sketch1.addConstraint(Sketcher.Constraint("Symmetric", 17, 3, 57, 3, -1, 1))
sketch1.addConstraint(Sketcher.Constraint("Symmetric", 18, 3, 58, 3, -1, 1))
sketch1.addConstraint(Sketcher.Constraint("Symmetric", 19, 3, 59, 3, -1, 1))
sketch1.addConstraint(Sketcher.Constraint("Symmetric", 21, 3, 61, 3, -1, 1))
sketch1.addConstraint(Sketcher.Constraint("Symmetric", 23, 3, 63, 3, -1, 1))
sketch1.addConstraint(Sketcher.Constraint("Symmetric", 27, 3, 67, 3, -1, 1))
sketch1.addConstraint(Sketcher.Constraint("Symmetric", 31, 3, 71, 3, -1, 1))
sketch1.addConstraint(Sketcher.Constraint("Symmetric", 35, 3, 75, 3, -1, 1))
sketch1.addConstraint(Sketcher.Constraint("Symmetric", 37, 3, 77, 3, -1, 1))
sketch1.addConstraint(Sketcher.Constraint("Symmetric", 38, 3, 78, 3, -1, 1))
sketch1.addConstraint(Sketcher.Constraint("Symmetric", 39, 3, 79, 3, -1, 1))
sketch1.addConstraint(Sketcher.Constraint("Symmetric", 25, 3, 31, 3, -2))
sketch1.addConstraint(Sketcher.Constraint("Symmetric", 21, 3, 35, 3, -2))
sketch1.addConstraint(Sketcher.Constraint("Symmetric", 19, 3, 37, 3, -2))
sketch1.addConstraint(Sketcher.Constraint("Symmetric", 18, 3, 38, 3, -2))
sketch1.addConstraint(Sketcher.Constraint("Symmetric", 17, 3, 39, 3, -2))
sketch1.addConstraint(Sketcher.Constraint("Symmetric", 15, 3, 41, 3, -2))
sketch1.addConstraint(Sketcher.Constraint("Symmetric", 13, 3, 43, 3, -2))
sketch1.addConstraint(Sketcher.Constraint("Symmetric", 10, 2, 45, 2, -2))
sketch1.addConstraint(Sketcher.Constraint("Symmetric", 6, 2, 49, 2, -2))
sketch1.addConstraint(Sketcher.Constraint("Symmetric", 66, 2, 69, 2, -2))
sketch1.addConstraint(Sketcher.Constraint("Perpendicular", 6, 10))
sketch1.addConstraint(Sketcher.Constraint("Parallel", 10, 26))
sketch1.addConstraint(Sketcher.Constraint("Perpendicular", 26, 30))
sketch1.addConstraint(Sketcher.Constraint("Horizontal", 19, 3, 21, 3))
sketch1.addConstraint(Sketcher.Constraint("Horizontal", 3, 3, 53, 3))
sketch1.addConstraint(Sketcher.Constraint("Horizontal", 37, 3, 19, 2))
sketch1.addConstraint(Sketcher.Constraint("Horizontal", 20, 2, 21, 2))
sketch1.addConstraint(Sketcher.Constraint("Horizontal", 34, 2, 35, 2))
sketch1.addConstraint(Sketcher.Constraint("Horizontal", 77, 3, 59, 2))
sketch1.addConstraint(Sketcher.Constraint("Horizontal", 74, 2, 75, 2))
sketch1.addConstraint(Sketcher.Constraint("Vertical", 15, 3, 17, 3))
sketch1.addConstraint(Sketcher.Constraint("Vertical", 33, 3, 63, 3))
sketch1.addConstraint(Sketcher.Constraint("Vertical", 23, 3, 73, 3))
sketch1.addConstraint(Sketcher.Constraint("Vertical", 79, 3, 0, 2))
sketch1.addConstraint(Sketcher.Constraint("Vertical", 0, 2, 1, 2))
sketch1.addConstraint(Sketcher.Constraint("Vertical", 14, 2, 15, 2))
sketch1.addConstraint(Sketcher.Constraint("Vertical", 57, 3, 39, 2))
sketch1.addConstraint(Sketcher.Constraint("Vertical", 54, 2, 55, 2))
sketch1.addConstraint(Sketcher.Constraint("Equal", 76, 0))
sketch1.addConstraint(Sketcher.Constraint("Equal", 74, 2))
sketch1.addConstraint(Sketcher.Constraint("Equal", 72, 4))
sketch1.addConstraint(Sketcher.Constraint("Equal", 68, 8))
sketch1.addConstraint(Sketcher.Constraint("Equal", 10, 26))
sketch1.addConstraint(Sketcher.Constraint("Radius", 1, Q("0.02 in")))
sketch1.addConstraint(Sketcher.Constraint("Radius", 5, Q("0.04 in")))
sketch1.addConstraint(Sketcher.Constraint("Diameter", 80, Q("0.205 in")))
sketch1.addConstraint(Sketcher.Constraint("Radius", 7, Q("0.125 in")))
sketch1.addConstraint(Sketcher.Constraint("Radius", 18, Q("0.083 in")))
sketch1.addConstraint(Sketcher.Constraint("DistanceX", 1, 3, -1, 1, Q("0.5 in")))
sketch1.addConstraint(Sketcher.Constraint("DistanceY", -1, 1, 19, 3, Q("0.5 in")))
sketch1.addConstraint(Sketcher.Constraint("Radius", 3, Q("0.0435 in")))
sketch1.addConstraint(Sketcher.Constraint("DistanceY", 3, 3, -1, 1, Q("0.171 in")))
sketch1.addConstraint(Sketcher.Constraint("DistanceX", 7, 3, -1, 1, Q("0.302 in")))
sketch1.addConstraint(Sketcher.Constraint("DistanceY", -1, 1, 17, 3, Q("0.396 in")))
sketch1.addConstraint(Sketcher.Constraint("DistanceX", 18, 3, -1, 1, Q("0.417 in")))
sketch1.addConstraint(Sketcher.Constraint("DistanceY", -1, 1, 18, 3, Q("0.417 in")))
sketch1.addConstraint(Sketcher.Constraint("DistanceX", 20, 1, 20, 2, Q("3.217316 mm")))
sketch1.addConstraint(Sketcher.Constraint("DistanceX", 24, 2, 24, 1, Q("2.131394 mm")))
sketch1.setExpression("Constraints[197]", "Params.sketch1_radius")
sketch1.setExpression("Constraints[198]", "Params.sketch1_radius2")
sketch1.setExpression("Constraints[199]", "Params.sketch1_diameter")
sketch1.setExpression("Constraints[200]", "Params.sketch1_radius3")
sketch1.setExpression("Constraints[201]", "Params.sketch1_radius4")
pad1 = body.newObject("PartDesign::Pad", "Pad")
pad1.Profile = sketch1
pad1.setExpression("Length", "Params.pad1_length")

doc.recompute()
